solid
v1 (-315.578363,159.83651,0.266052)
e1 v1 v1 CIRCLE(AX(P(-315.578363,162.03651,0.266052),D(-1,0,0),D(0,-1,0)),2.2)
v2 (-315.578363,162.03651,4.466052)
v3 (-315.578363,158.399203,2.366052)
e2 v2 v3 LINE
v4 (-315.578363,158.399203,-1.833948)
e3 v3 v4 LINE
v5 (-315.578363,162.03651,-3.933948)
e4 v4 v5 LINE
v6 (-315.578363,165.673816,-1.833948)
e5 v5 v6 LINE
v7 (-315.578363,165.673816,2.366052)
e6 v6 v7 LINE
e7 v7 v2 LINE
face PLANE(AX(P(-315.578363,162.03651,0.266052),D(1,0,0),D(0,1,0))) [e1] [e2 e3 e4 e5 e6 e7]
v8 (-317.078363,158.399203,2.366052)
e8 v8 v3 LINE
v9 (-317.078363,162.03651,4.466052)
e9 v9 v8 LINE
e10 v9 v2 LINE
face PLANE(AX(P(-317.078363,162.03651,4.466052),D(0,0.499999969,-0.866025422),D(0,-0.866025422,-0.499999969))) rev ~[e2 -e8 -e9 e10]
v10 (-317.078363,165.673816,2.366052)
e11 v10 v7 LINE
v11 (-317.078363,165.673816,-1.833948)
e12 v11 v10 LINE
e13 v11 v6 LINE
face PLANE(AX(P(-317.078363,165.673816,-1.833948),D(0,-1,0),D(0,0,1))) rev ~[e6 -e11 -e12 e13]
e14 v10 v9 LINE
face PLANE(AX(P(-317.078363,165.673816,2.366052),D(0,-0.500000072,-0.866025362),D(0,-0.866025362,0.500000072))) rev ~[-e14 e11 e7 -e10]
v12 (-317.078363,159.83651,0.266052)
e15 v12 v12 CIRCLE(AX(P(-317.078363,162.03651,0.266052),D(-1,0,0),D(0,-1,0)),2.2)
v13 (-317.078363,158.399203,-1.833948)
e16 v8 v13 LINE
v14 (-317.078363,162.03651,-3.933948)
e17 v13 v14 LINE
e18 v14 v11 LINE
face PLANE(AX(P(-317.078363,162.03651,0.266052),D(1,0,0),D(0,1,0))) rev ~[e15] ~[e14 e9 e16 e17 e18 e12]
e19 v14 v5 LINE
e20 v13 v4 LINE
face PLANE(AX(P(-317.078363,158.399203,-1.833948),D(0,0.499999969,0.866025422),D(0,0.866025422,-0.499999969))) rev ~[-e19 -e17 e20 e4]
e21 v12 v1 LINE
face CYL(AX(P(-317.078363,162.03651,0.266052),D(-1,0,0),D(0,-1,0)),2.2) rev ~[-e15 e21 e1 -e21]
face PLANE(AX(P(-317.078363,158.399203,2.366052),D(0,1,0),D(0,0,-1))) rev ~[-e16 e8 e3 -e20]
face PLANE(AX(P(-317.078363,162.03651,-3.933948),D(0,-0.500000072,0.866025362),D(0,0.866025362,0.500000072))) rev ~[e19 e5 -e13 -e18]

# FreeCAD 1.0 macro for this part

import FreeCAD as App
import Part
import Sketcher

V = App.Vector
Q = App.Units.Quantity


def add_polygon(sketch, points):
    """Adds a closed chain of lines whose ends are joined by coincident constraints."""
    first, n = sketch.GeometryCount, len(points)
    for a, b in zip(points, points[1:] + points[:1]):
        sketch.addGeometry(Part.LineSegment(App.Vector(*a, 0), App.Vector(*b, 0)), False)
    for i in range(n):
        sketch.addConstraint(Sketcher.Constraint("Coincident", first + i, 2, first + (i + 1) % n, 1))

doc = App.newDocument("Part")
body = doc.addObject("PartDesign::Body", "Body")

sketch1 = body.newObject("Sketcher::SketchObject", "Sketch")
sketch1.AttachmentSupport = (doc.getObject("YZ_Plane"), [""])
sketch1.MapMode = "FlatFace"
sketch1.AttachmentOffset = App.Placement(V(0, 0, -317.078363), App.Rotation())
sketch1.addGeometry(Part.Circle(V(162.03651, 0.266052, 0), V(0, 0, 1), 2.2), False)
sketch1.addConstraint(Sketcher.Constraint("Diameter", 0, Q("4.4 mm")))
sketch1.addConstraint(Sketcher.Constraint("DistanceX", -1, 1, 0, 3, Q("162.03651 mm")))
sketch1.addConstraint(Sketcher.Constraint("DistanceY", -1, 1, 0, 3, Q("0.266052 mm")))
pad1 = body.newObject("PartDesign::Pad", "Pad")
pad1.Profile = sketch1
pad1.Length = 24.9014
body2 = doc.addObject("PartDesign::Body", "Body001")

sketch2 = body2.newObject("Sketcher::SketchObject", "Sketch001")
sketch2.AttachmentSupport = (doc.getObject("YZ_Plane001"), [""])
sketch2.MapMode = "FlatFace"
sketch2.AttachmentOffset = App.Placement(V(0, 0, -317.078363), App.Rotation())
add_polygon(sketch2, [(162.03651, -3.933948), (158.399203, -1.833948), (158.399203, 2.366052), (162.03651, 4.466052), (165.673816, 2.366052), (165.673816, -1.833948)])
sketch2.addConstraint(Sketcher.Constraint("Vertical", 1))
sketch2.addConstraint(Sketcher.Constraint("Vertical", 4))
sketch2.addConstraint(Sketcher.Constraint("Parallel", 0, 3))
sketch2.addConstraint(Sketcher.Constraint("Parallel", 2, 5))
sketch2.addConstraint(Sketcher.Constraint("Horizontal", 1, 2, 3, 2))
sketch2.addConstraint(Sketcher.Constraint("Horizontal", 0, 2, 4, 2))
sketch2.addConstraint(Sketcher.Constraint("Vertical", 2, 2, 5, 2))
sketch2.addConstraint(Sketcher.Constraint("Angle", 0, Q("150.000002 deg")))
sketch2.addConstraint(Sketcher.Constraint("DistanceY", 1, 1, 1, 2, Q("4.2 mm")))
sketch2.addConstraint(Sketcher.Constraint("Distance", 0, Q("4.2 mm")))
sketch2.addConstraint(Sketcher.Constraint("DistanceY", -1, 1, 1, 2, Q("2.366052 mm")))
sketch2.addConstraint(Sketcher.Constraint("DistanceX", -1, 1, 2, 2, Q("162.03651 mm")))
pad2 = body2.newObject("PartDesign::Pad", "Pad001")
pad2.Profile = sketch2
pad2.Length = 1.5
doc.recompute()

boolean = body2.newObject("PartDesign::Boolean", "Boolean")
boolean.Type = "Cut"
boolean.addObjects([body])

doc.recompute()
